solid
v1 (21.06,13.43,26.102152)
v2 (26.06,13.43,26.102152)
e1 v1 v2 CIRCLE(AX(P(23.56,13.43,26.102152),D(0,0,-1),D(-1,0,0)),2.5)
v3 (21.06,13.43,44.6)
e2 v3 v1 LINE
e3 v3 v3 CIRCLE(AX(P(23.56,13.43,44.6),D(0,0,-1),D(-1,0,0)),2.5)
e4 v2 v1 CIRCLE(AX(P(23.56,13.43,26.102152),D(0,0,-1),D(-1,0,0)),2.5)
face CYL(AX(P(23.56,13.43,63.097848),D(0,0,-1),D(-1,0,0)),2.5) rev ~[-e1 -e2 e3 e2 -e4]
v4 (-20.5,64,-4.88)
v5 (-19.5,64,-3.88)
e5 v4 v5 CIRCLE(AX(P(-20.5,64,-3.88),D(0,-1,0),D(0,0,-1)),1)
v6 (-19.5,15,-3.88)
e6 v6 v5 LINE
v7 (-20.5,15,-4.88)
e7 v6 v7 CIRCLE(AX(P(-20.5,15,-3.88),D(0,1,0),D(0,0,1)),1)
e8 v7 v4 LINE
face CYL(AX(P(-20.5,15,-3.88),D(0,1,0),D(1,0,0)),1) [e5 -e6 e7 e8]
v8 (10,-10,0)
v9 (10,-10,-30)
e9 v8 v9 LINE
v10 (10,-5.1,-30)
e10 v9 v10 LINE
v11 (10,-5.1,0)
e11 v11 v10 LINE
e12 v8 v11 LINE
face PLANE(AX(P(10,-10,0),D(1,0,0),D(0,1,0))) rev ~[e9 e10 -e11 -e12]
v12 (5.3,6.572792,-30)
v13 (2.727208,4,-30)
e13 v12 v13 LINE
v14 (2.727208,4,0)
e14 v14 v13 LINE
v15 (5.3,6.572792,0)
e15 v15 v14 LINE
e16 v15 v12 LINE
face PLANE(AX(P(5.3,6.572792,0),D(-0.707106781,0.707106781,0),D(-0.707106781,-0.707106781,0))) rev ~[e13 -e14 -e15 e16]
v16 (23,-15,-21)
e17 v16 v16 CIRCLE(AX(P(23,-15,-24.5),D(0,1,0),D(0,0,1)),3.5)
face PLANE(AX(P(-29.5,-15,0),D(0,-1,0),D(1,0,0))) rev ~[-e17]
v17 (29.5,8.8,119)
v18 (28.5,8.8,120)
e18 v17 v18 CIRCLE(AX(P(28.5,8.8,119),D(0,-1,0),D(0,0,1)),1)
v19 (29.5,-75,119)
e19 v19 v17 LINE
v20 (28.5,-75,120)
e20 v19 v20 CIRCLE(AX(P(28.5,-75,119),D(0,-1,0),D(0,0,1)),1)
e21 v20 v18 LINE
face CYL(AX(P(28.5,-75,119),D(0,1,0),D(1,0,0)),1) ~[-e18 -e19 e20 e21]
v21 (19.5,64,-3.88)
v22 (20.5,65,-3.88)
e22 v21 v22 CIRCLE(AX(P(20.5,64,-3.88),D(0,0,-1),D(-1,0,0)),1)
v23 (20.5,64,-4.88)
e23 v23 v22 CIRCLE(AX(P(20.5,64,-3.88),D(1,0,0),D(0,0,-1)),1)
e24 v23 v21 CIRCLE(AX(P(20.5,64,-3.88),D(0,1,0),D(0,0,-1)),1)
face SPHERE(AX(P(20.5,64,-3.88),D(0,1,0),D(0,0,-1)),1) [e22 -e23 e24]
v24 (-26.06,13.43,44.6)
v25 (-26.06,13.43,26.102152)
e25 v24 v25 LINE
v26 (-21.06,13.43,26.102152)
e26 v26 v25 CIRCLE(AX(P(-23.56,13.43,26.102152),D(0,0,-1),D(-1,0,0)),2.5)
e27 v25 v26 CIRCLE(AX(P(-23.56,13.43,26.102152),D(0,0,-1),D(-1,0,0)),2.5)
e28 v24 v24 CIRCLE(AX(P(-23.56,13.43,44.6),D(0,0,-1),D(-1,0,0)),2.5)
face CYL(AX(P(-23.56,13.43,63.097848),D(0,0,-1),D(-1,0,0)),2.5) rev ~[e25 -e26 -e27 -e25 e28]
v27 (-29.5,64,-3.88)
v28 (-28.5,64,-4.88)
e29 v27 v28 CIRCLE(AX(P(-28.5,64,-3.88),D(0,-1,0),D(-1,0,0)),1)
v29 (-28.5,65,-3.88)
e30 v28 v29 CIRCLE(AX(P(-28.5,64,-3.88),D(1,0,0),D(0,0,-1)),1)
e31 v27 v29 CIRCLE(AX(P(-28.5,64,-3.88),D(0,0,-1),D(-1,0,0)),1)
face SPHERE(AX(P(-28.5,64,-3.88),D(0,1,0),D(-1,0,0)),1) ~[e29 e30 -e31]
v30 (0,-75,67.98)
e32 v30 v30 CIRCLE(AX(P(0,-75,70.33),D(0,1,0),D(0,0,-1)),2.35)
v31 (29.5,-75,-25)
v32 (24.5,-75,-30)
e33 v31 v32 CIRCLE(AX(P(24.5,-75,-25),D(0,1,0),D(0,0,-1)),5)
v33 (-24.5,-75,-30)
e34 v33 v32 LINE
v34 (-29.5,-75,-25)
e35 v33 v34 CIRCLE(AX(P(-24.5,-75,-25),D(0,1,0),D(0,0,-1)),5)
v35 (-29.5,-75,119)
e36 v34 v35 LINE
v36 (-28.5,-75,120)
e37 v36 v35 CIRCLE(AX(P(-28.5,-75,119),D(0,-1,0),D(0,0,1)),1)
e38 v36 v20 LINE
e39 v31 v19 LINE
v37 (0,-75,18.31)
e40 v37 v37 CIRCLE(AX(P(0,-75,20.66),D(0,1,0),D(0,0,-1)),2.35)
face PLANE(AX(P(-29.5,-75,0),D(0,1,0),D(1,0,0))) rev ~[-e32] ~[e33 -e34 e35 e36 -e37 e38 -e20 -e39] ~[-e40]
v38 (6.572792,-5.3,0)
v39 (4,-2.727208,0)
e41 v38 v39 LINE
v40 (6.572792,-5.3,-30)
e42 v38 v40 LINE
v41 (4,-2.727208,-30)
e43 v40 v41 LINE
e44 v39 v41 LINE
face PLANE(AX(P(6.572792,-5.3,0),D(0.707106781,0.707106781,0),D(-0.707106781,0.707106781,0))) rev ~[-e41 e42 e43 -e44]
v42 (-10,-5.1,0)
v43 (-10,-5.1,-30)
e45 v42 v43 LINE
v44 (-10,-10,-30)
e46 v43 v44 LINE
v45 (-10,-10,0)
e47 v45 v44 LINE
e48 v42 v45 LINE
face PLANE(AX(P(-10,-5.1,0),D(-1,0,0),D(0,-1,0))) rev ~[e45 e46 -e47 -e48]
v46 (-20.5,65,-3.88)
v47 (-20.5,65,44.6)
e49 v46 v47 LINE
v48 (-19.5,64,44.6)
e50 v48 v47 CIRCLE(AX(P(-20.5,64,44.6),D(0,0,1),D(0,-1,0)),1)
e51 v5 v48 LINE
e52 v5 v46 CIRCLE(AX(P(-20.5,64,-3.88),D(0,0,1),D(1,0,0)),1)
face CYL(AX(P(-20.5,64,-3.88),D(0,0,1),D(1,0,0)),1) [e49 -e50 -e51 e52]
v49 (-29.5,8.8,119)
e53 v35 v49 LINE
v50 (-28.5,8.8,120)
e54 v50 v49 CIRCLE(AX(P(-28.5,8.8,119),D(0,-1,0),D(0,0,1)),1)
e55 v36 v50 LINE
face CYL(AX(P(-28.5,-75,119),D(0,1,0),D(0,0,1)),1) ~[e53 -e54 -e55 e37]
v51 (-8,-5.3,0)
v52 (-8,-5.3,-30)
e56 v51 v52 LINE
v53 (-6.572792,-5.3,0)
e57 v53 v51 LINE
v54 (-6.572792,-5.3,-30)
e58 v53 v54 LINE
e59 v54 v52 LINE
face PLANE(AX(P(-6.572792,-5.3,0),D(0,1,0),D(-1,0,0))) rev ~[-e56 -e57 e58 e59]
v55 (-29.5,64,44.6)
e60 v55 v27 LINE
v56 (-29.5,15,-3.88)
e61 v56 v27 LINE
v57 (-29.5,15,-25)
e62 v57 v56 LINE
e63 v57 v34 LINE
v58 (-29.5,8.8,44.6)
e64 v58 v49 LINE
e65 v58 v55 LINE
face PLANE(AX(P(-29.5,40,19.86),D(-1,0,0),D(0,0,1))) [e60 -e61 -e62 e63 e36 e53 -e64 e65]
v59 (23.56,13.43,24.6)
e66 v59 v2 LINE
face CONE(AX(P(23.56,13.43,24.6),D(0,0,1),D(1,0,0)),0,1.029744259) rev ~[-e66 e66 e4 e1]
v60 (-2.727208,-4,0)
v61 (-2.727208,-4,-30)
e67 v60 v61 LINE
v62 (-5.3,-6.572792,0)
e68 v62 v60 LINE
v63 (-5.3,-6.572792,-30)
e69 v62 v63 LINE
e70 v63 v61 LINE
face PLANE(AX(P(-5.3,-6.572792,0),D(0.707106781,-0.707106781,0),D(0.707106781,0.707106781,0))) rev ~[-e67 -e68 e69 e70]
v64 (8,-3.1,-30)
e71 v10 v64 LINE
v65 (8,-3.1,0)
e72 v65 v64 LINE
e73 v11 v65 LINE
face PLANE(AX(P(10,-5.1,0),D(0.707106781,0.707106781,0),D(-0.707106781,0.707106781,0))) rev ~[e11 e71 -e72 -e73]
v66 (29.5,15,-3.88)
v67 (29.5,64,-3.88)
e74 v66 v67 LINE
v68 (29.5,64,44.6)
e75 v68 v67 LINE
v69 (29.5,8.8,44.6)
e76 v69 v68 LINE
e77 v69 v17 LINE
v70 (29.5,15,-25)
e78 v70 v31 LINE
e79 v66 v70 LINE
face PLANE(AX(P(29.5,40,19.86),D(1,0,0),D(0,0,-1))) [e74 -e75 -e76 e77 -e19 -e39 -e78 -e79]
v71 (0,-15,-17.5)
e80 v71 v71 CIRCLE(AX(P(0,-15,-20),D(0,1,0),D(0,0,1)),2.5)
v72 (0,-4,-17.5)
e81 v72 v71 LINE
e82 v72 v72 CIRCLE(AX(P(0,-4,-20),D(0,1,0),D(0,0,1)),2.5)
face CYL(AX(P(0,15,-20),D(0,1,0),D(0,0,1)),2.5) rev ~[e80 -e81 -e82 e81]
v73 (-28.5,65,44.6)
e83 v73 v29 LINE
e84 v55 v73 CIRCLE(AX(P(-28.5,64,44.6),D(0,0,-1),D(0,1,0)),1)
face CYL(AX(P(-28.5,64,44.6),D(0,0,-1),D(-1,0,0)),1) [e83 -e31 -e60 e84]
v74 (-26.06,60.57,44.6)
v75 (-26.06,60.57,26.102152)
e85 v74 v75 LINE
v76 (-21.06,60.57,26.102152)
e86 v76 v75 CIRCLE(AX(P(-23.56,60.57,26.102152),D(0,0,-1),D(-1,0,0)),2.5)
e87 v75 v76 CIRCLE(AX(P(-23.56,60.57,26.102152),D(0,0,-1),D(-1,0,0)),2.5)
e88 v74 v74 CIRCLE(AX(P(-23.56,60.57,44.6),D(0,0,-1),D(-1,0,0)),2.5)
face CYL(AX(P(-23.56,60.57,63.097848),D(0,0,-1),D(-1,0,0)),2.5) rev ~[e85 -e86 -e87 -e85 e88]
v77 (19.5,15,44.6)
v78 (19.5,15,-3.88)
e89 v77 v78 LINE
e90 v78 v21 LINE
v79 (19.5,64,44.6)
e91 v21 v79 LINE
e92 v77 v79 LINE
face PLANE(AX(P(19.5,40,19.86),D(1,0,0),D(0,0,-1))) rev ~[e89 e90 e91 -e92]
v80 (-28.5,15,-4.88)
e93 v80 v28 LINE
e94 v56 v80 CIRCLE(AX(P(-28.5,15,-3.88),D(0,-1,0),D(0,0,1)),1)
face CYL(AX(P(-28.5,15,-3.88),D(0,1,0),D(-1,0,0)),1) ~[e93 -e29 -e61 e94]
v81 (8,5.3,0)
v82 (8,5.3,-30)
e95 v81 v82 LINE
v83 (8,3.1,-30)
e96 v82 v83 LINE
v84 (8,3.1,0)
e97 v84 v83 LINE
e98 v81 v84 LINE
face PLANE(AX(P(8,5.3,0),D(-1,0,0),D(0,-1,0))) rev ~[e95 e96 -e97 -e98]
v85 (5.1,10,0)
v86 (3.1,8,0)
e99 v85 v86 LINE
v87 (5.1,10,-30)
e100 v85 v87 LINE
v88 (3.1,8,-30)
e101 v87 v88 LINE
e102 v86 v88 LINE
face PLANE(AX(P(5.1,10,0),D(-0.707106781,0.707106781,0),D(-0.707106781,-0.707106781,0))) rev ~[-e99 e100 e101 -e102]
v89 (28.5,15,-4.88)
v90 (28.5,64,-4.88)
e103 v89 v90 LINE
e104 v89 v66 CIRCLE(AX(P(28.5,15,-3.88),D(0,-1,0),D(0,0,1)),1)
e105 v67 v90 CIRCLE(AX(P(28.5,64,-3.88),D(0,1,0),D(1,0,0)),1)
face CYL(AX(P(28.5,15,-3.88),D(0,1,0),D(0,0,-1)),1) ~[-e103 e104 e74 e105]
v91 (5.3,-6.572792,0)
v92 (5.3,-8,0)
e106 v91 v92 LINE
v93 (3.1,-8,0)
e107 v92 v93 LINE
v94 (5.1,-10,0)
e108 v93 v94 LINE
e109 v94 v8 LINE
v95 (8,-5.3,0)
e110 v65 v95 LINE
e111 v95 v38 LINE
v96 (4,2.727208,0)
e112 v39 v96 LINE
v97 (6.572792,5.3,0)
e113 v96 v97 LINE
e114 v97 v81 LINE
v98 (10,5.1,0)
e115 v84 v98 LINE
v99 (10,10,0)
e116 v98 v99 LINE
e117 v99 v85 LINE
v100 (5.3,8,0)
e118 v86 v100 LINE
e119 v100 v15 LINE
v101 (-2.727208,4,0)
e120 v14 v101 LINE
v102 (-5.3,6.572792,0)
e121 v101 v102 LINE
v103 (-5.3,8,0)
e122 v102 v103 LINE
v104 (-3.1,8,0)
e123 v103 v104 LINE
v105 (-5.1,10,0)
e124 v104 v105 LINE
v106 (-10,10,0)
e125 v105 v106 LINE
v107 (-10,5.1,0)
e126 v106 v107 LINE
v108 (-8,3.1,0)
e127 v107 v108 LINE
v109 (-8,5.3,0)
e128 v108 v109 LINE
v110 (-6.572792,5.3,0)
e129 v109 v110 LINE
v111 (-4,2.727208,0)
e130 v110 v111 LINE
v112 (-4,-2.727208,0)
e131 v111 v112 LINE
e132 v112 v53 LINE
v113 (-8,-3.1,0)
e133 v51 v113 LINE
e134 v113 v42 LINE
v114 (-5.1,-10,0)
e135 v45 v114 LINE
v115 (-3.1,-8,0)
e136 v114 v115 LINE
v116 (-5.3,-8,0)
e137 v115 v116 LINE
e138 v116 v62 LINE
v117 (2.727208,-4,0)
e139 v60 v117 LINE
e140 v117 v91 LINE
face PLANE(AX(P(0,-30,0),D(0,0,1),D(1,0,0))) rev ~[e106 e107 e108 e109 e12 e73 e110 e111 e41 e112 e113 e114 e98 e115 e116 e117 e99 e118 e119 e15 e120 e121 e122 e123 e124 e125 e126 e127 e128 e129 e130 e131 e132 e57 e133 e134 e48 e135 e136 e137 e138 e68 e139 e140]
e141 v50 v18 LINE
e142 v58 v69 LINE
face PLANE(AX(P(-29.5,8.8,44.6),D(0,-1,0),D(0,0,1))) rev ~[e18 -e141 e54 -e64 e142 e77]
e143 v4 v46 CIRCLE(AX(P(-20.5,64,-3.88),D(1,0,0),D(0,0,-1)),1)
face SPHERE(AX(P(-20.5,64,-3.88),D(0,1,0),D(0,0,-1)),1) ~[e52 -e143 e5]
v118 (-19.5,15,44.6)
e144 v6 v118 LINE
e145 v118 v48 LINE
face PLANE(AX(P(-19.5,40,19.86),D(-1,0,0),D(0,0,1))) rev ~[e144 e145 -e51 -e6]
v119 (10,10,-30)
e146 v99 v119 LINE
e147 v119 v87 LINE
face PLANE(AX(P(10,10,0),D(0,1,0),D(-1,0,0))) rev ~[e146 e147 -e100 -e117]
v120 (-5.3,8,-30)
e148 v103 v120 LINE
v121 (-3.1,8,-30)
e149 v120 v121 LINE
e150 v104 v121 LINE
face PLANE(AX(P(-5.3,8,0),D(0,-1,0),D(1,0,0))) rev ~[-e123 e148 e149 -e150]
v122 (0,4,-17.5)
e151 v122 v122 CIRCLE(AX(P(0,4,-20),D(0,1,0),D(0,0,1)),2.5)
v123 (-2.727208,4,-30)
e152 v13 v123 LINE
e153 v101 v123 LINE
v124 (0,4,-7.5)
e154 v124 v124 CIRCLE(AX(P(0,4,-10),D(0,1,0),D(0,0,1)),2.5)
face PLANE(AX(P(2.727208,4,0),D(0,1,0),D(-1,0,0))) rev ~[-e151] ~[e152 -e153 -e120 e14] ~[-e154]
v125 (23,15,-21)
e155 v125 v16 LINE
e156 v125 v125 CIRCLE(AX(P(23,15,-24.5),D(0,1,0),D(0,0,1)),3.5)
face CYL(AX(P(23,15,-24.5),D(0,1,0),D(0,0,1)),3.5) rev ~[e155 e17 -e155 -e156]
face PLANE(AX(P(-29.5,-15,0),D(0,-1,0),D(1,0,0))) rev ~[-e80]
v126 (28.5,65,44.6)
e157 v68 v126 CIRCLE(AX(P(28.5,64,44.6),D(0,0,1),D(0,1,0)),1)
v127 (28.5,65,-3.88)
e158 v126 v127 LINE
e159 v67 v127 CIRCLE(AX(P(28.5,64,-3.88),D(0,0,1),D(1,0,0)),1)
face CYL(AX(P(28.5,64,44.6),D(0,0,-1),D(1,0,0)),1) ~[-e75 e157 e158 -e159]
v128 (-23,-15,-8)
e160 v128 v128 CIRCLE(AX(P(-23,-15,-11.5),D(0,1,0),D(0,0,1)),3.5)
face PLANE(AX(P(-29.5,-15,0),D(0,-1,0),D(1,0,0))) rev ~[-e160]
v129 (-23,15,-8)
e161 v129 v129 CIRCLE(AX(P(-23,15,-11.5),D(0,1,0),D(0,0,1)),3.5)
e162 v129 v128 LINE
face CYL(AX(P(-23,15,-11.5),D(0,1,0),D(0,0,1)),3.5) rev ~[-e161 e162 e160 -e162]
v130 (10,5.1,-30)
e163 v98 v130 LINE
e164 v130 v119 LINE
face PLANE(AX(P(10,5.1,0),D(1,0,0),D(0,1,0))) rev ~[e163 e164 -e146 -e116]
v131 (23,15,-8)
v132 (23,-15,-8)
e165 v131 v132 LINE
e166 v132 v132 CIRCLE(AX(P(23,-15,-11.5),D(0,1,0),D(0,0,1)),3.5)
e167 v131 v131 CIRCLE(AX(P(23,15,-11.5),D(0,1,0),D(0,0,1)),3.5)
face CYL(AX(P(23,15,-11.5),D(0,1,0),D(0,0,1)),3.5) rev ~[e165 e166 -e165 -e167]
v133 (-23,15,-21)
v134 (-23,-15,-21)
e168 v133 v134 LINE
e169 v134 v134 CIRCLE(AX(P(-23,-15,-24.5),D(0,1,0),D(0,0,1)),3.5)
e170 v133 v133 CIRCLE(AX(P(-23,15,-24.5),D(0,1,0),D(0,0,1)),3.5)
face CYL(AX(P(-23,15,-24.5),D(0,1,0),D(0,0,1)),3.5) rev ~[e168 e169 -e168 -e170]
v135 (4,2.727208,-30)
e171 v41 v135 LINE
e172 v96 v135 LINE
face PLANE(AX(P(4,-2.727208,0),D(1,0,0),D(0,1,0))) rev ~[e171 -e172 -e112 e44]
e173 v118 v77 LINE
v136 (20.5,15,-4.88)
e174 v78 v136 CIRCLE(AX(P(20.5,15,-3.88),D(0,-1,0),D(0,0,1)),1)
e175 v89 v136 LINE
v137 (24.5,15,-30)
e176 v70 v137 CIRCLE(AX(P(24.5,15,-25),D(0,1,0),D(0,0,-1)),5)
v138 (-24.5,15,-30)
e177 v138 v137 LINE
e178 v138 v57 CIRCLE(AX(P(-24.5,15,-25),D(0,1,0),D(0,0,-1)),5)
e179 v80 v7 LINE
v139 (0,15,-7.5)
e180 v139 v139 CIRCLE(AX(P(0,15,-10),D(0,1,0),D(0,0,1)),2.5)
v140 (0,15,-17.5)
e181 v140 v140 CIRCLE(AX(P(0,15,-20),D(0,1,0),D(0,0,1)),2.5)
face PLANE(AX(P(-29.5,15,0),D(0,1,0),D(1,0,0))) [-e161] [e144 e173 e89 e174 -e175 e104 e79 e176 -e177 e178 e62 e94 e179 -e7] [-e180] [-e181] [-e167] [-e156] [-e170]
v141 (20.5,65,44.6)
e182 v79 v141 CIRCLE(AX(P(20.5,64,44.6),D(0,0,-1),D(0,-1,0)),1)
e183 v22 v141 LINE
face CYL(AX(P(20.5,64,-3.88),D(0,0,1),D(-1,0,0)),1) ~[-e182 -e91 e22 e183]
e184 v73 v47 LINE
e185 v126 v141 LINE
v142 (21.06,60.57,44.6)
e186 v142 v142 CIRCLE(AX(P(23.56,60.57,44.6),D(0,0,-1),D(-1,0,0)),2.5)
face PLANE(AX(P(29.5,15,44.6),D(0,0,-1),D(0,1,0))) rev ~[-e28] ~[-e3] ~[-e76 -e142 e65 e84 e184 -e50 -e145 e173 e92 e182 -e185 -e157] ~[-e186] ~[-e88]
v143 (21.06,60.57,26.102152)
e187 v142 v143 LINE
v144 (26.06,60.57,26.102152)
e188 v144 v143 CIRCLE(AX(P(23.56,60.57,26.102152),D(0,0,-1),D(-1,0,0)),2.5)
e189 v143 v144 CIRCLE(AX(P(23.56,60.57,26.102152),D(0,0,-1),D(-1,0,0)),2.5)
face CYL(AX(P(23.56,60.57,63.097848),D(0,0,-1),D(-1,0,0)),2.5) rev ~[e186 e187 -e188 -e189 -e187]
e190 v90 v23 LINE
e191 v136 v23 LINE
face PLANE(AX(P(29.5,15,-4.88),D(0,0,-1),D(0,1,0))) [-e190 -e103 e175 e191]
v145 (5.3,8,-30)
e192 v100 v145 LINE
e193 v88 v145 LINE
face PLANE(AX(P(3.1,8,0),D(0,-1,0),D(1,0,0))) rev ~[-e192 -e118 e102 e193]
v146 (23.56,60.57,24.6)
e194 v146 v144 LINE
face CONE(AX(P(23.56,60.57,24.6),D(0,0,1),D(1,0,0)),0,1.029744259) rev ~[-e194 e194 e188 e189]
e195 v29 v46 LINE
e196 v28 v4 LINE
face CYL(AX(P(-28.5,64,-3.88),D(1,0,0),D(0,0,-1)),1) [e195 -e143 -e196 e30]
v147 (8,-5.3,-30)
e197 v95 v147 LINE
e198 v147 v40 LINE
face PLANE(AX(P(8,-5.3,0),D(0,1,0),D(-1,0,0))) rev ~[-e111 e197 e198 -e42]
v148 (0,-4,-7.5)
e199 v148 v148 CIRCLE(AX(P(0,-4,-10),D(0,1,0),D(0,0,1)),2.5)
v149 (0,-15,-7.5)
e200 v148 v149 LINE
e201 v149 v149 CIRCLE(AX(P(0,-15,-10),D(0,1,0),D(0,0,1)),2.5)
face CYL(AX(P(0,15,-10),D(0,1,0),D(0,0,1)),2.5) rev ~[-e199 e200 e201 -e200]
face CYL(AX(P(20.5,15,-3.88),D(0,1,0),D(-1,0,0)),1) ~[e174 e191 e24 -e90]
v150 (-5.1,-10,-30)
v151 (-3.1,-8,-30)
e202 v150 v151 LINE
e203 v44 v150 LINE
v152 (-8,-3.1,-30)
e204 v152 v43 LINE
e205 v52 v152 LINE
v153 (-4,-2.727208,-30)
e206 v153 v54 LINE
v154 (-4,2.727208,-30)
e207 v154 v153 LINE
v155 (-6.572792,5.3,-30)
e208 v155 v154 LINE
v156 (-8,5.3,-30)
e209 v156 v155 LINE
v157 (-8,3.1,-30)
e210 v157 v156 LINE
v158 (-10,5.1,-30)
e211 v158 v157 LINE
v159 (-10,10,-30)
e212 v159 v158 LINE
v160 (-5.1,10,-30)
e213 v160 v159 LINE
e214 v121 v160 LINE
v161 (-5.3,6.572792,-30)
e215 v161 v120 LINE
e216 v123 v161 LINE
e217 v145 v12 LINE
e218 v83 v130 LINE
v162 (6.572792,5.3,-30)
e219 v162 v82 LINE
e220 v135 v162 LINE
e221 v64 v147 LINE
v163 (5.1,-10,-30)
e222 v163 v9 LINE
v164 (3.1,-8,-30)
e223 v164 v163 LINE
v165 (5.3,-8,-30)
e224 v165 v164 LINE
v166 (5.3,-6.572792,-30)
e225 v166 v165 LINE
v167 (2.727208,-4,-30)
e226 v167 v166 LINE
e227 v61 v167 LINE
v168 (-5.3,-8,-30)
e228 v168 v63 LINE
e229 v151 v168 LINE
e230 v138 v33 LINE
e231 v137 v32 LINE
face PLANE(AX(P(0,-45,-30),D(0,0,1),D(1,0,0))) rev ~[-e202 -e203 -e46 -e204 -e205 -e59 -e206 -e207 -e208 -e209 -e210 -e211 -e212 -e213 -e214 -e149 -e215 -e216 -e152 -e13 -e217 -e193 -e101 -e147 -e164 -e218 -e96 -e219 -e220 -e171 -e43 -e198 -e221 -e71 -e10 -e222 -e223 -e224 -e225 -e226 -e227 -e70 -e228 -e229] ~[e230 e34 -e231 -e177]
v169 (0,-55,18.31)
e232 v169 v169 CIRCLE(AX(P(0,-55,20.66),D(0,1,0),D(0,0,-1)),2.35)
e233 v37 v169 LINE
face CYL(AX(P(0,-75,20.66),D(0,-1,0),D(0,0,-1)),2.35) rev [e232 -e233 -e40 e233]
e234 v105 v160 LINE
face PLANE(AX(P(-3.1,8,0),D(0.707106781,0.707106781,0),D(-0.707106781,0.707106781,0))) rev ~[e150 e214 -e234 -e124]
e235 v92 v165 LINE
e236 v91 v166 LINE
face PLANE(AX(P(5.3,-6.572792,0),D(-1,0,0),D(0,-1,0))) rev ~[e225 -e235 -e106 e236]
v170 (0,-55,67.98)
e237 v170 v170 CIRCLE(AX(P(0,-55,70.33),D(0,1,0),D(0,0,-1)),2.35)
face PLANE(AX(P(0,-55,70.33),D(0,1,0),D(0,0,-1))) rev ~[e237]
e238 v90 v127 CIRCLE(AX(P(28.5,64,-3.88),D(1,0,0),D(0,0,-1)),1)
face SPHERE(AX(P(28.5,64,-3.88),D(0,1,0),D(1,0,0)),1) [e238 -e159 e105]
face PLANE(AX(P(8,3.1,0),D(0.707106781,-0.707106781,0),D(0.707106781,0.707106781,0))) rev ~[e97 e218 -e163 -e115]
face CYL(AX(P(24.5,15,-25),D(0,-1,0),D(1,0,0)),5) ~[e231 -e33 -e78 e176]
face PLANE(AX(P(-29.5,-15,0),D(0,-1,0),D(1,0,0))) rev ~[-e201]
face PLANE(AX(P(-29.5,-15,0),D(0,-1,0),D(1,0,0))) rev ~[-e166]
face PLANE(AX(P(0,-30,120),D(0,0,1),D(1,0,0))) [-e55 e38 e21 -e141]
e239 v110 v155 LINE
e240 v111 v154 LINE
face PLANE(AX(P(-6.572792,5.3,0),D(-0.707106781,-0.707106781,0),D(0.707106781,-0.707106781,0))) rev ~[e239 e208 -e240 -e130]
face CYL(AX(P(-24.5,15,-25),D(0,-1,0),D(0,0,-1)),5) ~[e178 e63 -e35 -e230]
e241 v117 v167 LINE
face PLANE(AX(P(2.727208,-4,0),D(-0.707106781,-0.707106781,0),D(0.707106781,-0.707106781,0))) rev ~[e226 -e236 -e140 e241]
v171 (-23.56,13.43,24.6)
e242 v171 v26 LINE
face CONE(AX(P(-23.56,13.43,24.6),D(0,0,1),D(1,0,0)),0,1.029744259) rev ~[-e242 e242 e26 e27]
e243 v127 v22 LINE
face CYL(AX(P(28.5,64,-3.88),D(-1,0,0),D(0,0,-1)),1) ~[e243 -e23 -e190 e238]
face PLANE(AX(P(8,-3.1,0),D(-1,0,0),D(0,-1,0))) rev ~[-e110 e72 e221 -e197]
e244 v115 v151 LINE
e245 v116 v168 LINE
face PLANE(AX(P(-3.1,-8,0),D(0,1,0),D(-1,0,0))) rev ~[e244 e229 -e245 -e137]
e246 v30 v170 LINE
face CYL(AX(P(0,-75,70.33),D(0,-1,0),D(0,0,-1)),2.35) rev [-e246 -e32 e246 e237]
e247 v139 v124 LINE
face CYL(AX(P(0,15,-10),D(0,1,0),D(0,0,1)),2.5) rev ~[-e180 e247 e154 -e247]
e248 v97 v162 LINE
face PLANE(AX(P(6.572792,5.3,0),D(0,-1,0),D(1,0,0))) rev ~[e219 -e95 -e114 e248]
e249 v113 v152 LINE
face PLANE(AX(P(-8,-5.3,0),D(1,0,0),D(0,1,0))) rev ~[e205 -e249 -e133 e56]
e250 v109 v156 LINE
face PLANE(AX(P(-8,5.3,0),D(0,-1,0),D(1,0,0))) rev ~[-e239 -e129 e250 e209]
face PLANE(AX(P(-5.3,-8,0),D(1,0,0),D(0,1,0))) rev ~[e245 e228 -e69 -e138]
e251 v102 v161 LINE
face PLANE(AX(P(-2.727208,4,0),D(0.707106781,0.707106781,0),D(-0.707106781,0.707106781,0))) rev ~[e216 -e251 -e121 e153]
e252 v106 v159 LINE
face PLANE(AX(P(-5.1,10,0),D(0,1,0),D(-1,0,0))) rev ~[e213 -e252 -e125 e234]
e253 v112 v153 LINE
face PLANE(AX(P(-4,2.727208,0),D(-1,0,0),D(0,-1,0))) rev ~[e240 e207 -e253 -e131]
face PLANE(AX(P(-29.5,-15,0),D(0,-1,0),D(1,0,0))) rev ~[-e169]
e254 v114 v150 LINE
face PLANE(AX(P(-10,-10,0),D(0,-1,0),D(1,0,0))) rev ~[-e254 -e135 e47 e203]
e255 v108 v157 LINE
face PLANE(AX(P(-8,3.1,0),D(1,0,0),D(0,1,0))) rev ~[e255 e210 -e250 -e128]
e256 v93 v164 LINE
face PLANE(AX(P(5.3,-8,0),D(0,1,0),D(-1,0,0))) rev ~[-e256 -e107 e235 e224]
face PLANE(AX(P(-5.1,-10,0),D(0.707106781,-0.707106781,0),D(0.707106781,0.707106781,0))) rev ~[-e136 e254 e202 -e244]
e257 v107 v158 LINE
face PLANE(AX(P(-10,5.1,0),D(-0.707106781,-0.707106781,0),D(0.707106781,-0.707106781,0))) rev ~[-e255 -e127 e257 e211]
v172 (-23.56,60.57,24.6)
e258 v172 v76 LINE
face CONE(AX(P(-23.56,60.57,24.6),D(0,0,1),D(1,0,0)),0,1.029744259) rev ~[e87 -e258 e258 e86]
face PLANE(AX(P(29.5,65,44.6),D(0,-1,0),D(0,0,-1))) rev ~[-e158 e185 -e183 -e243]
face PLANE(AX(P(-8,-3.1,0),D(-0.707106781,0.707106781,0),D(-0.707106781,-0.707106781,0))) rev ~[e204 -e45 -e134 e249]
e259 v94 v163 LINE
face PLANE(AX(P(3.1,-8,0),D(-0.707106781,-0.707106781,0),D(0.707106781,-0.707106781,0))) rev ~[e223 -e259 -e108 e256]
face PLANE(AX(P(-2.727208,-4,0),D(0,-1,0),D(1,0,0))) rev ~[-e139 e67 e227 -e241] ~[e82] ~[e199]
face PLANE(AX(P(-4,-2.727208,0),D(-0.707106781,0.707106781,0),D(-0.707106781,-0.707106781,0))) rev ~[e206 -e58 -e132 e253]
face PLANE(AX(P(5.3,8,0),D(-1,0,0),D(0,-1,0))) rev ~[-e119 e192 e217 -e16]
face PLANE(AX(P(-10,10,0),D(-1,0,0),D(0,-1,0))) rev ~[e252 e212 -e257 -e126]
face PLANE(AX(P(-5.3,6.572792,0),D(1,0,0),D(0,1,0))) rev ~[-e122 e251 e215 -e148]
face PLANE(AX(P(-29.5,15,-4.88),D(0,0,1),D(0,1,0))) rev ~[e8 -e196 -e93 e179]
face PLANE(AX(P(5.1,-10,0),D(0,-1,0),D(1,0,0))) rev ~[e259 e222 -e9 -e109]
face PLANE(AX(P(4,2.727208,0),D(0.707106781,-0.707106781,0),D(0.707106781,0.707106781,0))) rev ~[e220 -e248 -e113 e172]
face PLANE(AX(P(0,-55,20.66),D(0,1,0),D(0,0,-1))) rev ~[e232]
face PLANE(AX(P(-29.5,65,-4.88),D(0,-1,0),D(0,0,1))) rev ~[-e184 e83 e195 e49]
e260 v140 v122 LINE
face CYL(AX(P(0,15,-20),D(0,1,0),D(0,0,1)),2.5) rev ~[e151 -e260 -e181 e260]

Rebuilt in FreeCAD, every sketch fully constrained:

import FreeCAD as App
import Part
import Sketcher
Q = App.Units.Quantity


def edges_at(feature, points):
    """Names of the edges that pass closest to the given points."""
    edges = feature.Shape.Edges
    near = lambda p: min(range(len(edges)), key=lambda i: edges[i].distToShape(Part.Vertex(*p))[0])
    return sorted({f"Edge{near(p) + 1}" for p in points})

doc = App.newDocument("Part")
body = doc.addObject("PartDesign::Body", "Body")

# Sketch on XY plane
sketch1 = body.newObject("Sketcher::SketchObject", "Sketch")
sketch1.AttachmentSupport = (doc.getObject("XY_Plane"), [""])
sketch1.MapMode = "FlatFace"
sketch1.addGeometry([
    Part.LineSegment(App.Vector(-29.5, 15, 0), App.Vector(-29.5, -15, 0)),  # 0
    Part.LineSegment(App.Vector(-29.5, -15, 0), App.Vector(29.5, -15, 0)),  # 1
    Part.LineSegment(App.Vector(29.5, -15, 0), App.Vector(29.5, 15, 0)),  # 2
    Part.LineSegment(App.Vector(29.5, 15, 0), App.Vector(-29.5, 15, 0)),  # 3
    Part.LineSegment(App.Vector(6.6, 5.3, 0), App.Vector(4, 2.7, 0)),  # 4
    Part.LineSegment(App.Vector(4, 2.7, 0), App.Vector(4, -2.7, 0)),  # 5
    Part.LineSegment(App.Vector(4, -2.7, 0), App.Vector(6.6, -5.3, 0)),  # 6
    Part.LineSegment(App.Vector(6.6, -5.3, 0), App.Vector(8, -5.3, 0)),  # 7
    Part.LineSegment(App.Vector(8, -5.3, 0), App.Vector(8, -3.1, 0)),  # 8
    Part.LineSegment(App.Vector(8, -3.1, 0), App.Vector(10, -5.1, 0)),  # 9
    Part.LineSegment(App.Vector(10, -5.1, 0), App.Vector(10, -10, 0)),  # 10
    Part.LineSegment(App.Vector(10, -10, 0), App.Vector(5.1, -10, 0)),  # 11
    Part.LineSegment(App.Vector(5.1, -10, 0), App.Vector(3.1, -8, 0)),  # 12
    Part.LineSegment(App.Vector(3.1, -8, 0), App.Vector(5.3, -8, 0)),  # 13
    Part.LineSegment(App.Vector(5.3, -8, 0), App.Vector(5.3, -6.6, 0)),  # 14
    Part.LineSegment(App.Vector(5.3, -6.6, 0), App.Vector(2.7, -4, 0)),  # 15
    Part.LineSegment(App.Vector(2.7, -4, 0), App.Vector(-2.7, -4, 0)),  # 16
    Part.LineSegment(App.Vector(-2.7, -4, 0), App.Vector(-5.3, -6.6, 0)),  # 17
    Part.LineSegment(App.Vector(-5.3, -6.6, 0), App.Vector(-5.3, -8, 0)),  # 18
    Part.LineSegment(App.Vector(-5.3, -8, 0), App.Vector(-3.1, -8, 0)),  # 19
    Part.LineSegment(App.Vector(-3.1, -8, 0), App.Vector(-5.1, -10, 0)),  # 20
    Part.LineSegment(App.Vector(-5.1, -10, 0), App.Vector(-10, -10, 0)),  # 21
    Part.LineSegment(App.Vector(-10, -10, 0), App.Vector(-10, -5.1, 0)),  # 22
    Part.LineSegment(App.Vector(-10, -5.1, 0), App.Vector(-8, -3.1, 0)),  # 23
    Part.LineSegment(App.Vector(-8, -3.1, 0), App.Vector(-8, -5.3, 0)),  # 24
    Part.LineSegment(App.Vector(-8, -5.3, 0), App.Vector(-6.6, -5.3, 0)),  # 25
    Part.LineSegment(App.Vector(-6.6, -5.3, 0), App.Vector(-4, -2.7, 0)),  # 26
    Part.LineSegment(App.Vector(-4, -2.7, 0), App.Vector(-4, 2.7, 0)),  # 27
    Part.LineSegment(App.Vector(-4, 2.7, 0), App.Vector(-6.6, 5.3, 0)),  # 28
    Part.LineSegment(App.Vector(-6.6, 5.3, 0), App.Vector(-8, 5.3, 0)),  # 29
    Part.LineSegment(App.Vector(-8, 5.3, 0), App.Vector(-8, 3.1, 0)),  # 30
    Part.LineSegment(App.Vector(-8, 3.1, 0), App.Vector(-10, 5.1, 0)),  # 31
    Part.LineSegment(App.Vector(-10, 5.1, 0), App.Vector(-10, 10, 0)),  # 32
    Part.LineSegment(App.Vector(-10, 10, 0), App.Vector(-5.1, 10, 0)),  # 33
    Part.LineSegment(App.Vector(-5.1, 10, 0), App.Vector(-3.1, 8, 0)),  # 34
    Part.LineSegment(App.Vector(-3.1, 8, 0), App.Vector(-5.3, 8, 0)),  # 35
    Part.LineSegment(App.Vector(-5.3, 8, 0), App.Vector(-5.3, 6.6, 0)),  # 36
    Part.LineSegment(App.Vector(-5.3, 6.6, 0), App.Vector(-2.7, 4, 0)),  # 37
    Part.LineSegment(App.Vector(-2.7, 4, 0), App.Vector(2.7, 4, 0)),  # 38
    Part.LineSegment(App.Vector(2.7, 4, 0), App.Vector(5.3, 6.6, 0)),  # 39
    Part.LineSegment(App.Vector(5.3, 6.6, 0), App.Vector(5.3, 8, 0)),  # 40
    Part.LineSegment(App.Vector(5.3, 8, 0), App.Vector(3.1, 8, 0)),  # 41
    Part.LineSegment(App.Vector(3.1, 8, 0), App.Vector(5.1, 10, 0)),  # 42
    Part.LineSegment(App.Vector(5.1, 10, 0), App.Vector(10, 10, 0)),  # 43
    Part.LineSegment(App.Vector(10, 10, 0), App.Vector(10, 5.1, 0)),  # 44
    Part.LineSegment(App.Vector(10, 5.1, 0), App.Vector(8, 3.1, 0)),  # 45
    Part.LineSegment(App.Vector(8, 3.1, 0), App.Vector(8, 5.3, 0)),  # 46
    Part.LineSegment(App.Vector(8, 5.3, 0), App.Vector(6.6, 5.3, 0)),  # 47
], False)
sketch1.addConstraint([
    Sketcher.Constraint("Coincident", 0, 2, 1, 1),
    Sketcher.Constraint("Coincident", 1, 2, 2, 1),
    Sketcher.Constraint("Coincident", 2, 2, 3, 1),
    Sketcher.Constraint("Coincident", 3, 2, 0, 1),
    Sketcher.Constraint("Coincident", 4, 2, 5, 1),
    Sketcher.Constraint("Coincident", 5, 2, 6, 1),
    Sketcher.Constraint("Coincident", 6, 2, 7, 1),
    Sketcher.Constraint("Coincident", 7, 2, 8, 1),
    Sketcher.Constraint("Coincident", 8, 2, 9, 1),
    Sketcher.Constraint("Coincident", 9, 2, 10, 1),
    Sketcher.Constraint("Coincident", 10, 2, 11, 1),
    Sketcher.Constraint("Coincident", 11, 2, 12, 1),
    Sketcher.Constraint("Coincident", 12, 2, 13, 1),
    Sketcher.Constraint("Coincident", 13, 2, 14, 1),
    Sketcher.Constraint("Coincident", 14, 2, 15, 1),
    Sketcher.Constraint("Coincident", 15, 2, 16, 1),
    Sketcher.Constraint("Coincident", 16, 2, 17, 1),
    Sketcher.Constraint("Coincident", 17, 2, 18, 1),
    Sketcher.Constraint("Coincident", 18, 2, 19, 1),
    Sketcher.Constraint("Coincident", 19, 2, 20, 1),
    Sketcher.Constraint("Coincident", 20, 2, 21, 1),
    Sketcher.Constraint("Coincident", 21, 2, 22, 1),
    Sketcher.Constraint("Coincident", 22, 2, 23, 1),
    Sketcher.Constraint("Coincident", 23, 2, 24, 1),
    Sketcher.Constraint("Coincident", 24, 2, 25, 1),
    Sketcher.Constraint("Coincident", 25, 2, 26, 1),
    Sketcher.Constraint("Coincident", 26, 2, 27, 1),
    Sketcher.Constraint("Coincident", 27, 2, 28, 1),
    Sketcher.Constraint("Coincident", 28, 2, 29, 1),
    Sketcher.Constraint("Coincident", 29, 2, 30, 1),
    Sketcher.Constraint("Coincident", 30, 2, 31, 1),
    Sketcher.Constraint("Coincident", 31, 2, 32, 1),
    Sketcher.Constraint("Coincident", 32, 2, 33, 1),
    Sketcher.Constraint("Coincident", 33, 2, 34, 1),
    Sketcher.Constraint("Coincident", 34, 2, 35, 1),
    Sketcher.Constraint("Coincident", 35, 2, 36, 1),
    Sketcher.Constraint("Coincident", 36, 2, 37, 1),
    Sketcher.Constraint("Coincident", 37, 2, 38, 1),
    Sketcher.Constraint("Coincident", 38, 2, 39, 1),
    Sketcher.Constraint("Coincident", 39, 2, 40, 1),
    Sketcher.Constraint("Coincident", 40, 2, 41, 1),
    Sketcher.Constraint("Coincident", 41, 2, 42, 1),
    Sketcher.Constraint("Coincident", 42, 2, 43, 1),
    Sketcher.Constraint("Coincident", 43, 2, 44, 1),
    Sketcher.Constraint("Coincident", 44, 2, 45, 1),
    Sketcher.Constraint("Coincident", 45, 2, 46, 1),
    Sketcher.Constraint("Coincident", 46, 2, 47, 1),
    Sketcher.Constraint("Coincident", 47, 2, 4, 1),
    Sketcher.Constraint("Vertical", 0),
    Sketcher.Constraint("Horizontal", 1),
    Sketcher.Constraint("Vertical", 2),
    Sketcher.Constraint("Horizontal", 3),
    Sketcher.Constraint("Vertical", 5),
    Sketcher.Constraint("Horizontal", 7),
    Sketcher.Constraint("Vertical", 8),
    Sketcher.Constraint("Vertical", 10),
    Sketcher.Constraint("Horizontal", 11),
    Sketcher.Constraint("Horizontal", 13),
    Sketcher.Constraint("Vertical", 14),
    Sketcher.Constraint("Horizontal", 16),
    Sketcher.Constraint("Vertical", 18),
    Sketcher.Constraint("Horizontal", 19),
    Sketcher.Constraint("Horizontal", 21),
    Sketcher.Constraint("Vertical", 22),
    Sketcher.Constraint("Vertical", 24),
    Sketcher.Constraint("Horizontal", 25),
    Sketcher.Constraint("Vertical", 27),
    Sketcher.Constraint("Horizontal", 29),
    Sketcher.Constraint("Vertical", 30),
    Sketcher.Constraint("Vertical", 32),
    Sketcher.Constraint("Horizontal", 33),
    Sketcher.Constraint("Horizontal", 35),
    Sketcher.Constraint("Vertical", 36),
    Sketcher.Constraint("Horizontal", 38),
    Sketcher.Constraint("Vertical", 40),
    Sketcher.Constraint("Horizontal", 41),
    Sketcher.Constraint("Horizontal", 43),
    Sketcher.Constraint("Vertical", 44),
    Sketcher.Constraint("Vertical", 46),
    Sketcher.Constraint("Horizontal", 47),
    Sketcher.Constraint("Symmetric", 0, 2, 2, 2, -1, 1),
    Sketcher.Constraint("Symmetric", 4, 2, 26, 2, -1, 1),
    Sketcher.Constraint("Symmetric", 6, 2, 28, 2, -1, 1),
    Sketcher.Constraint("Symmetric", 8, 2, 30, 2, -1, 1),
    Sketcher.Constraint("Symmetric", 9, 2, 31, 2, -1, 1),
    Sketcher.Constraint("Symmetric", 11, 2, 33, 2, -1, 1),
    Sketcher.Constraint("Symmetric", 12, 2, 34, 2, -1, 1),
    Sketcher.Constraint("Symmetric", 14, 2, 36, 2, -1, 1),
    Sketcher.Constraint("Symmetric", 15, 2, 37, 2, -1, 1),
    Sketcher.Constraint("Symmetric", 17, 2, 39, 2, -1, 1),
    Sketcher.Constraint("Symmetric", 19, 2, 41, 2, -1, 1),
    Sketcher.Constraint("Symmetric", 20, 2, 42, 2, -1, 1),
    Sketcher.Constraint("Symmetric", 22, 2, 44, 2, -1, 1),
    Sketcher.Constraint("Symmetric", 23, 2, 45, 2, -1, 1),
    Sketcher.Constraint("Symmetric", 25, 2, 47, 2, -1, 1),
    Sketcher.Constraint("Symmetric", 14, 2, 17, 2, -2),
    Sketcher.Constraint("Symmetric", 12, 2, 19, 2, -2),
    Sketcher.Constraint("Symmetric", 11, 2, 20, 2, -2),
    Sketcher.Constraint("Symmetric", 9, 2, 22, 2, -2),
    Sketcher.Constraint("Symmetric", 8, 2, 23, 2, -2),
    Sketcher.Constraint("Symmetric", 6, 2, 25, 2, -2),
    Sketcher.Constraint("Perpendicular", 4, 6),
    Sketcher.Constraint("Parallel", 6, 9),
    Sketcher.Constraint("Parallel", 9, 12),
    Sketcher.Constraint("Parallel", 12, 15),
    Sketcher.Constraint("Perpendicular", 15, 17),
    Sketcher.Constraint("Parallel", 17, 20),
    Sketcher.Constraint("Perpendicular", 26, 28),
    Sketcher.Constraint("Perpendicular", 37, 39),
    Sketcher.Constraint("Equal", 38, 5),
    Sketcher.Constraint("Equal", 41, 8),
    Sketcher.Constraint("Equal", 43, 10),
    Sketcher.Constraint("Equal", 47, 14),
    Sketcher.Constraint("Equal", 9, 12),
    Sketcher.Constraint("Equal", 6, 15),
    Sketcher.Constraint("DistanceX", 1, 1, 1, 2, Q("59 mm")),
    Sketcher.Constraint("DistanceY", 0, 2, 0, 1, Q("30 mm")),
    Sketcher.Constraint("DistanceX", 11, 2, 11, 1, Q("4.9 mm")),
    Sketcher.Constraint("DistanceX", 13, 1, 13, 2, Q("2.2 mm")),
    Sketcher.Constraint("DistanceX", -1, 1, 4, 2, Q("4 mm")),
    Sketcher.Constraint("DistanceX", -1, 1, 7, 2, Q("8 mm")),
    Sketcher.Constraint("DistanceX", -1, 1, 9, 2, Q("10 mm")),
    Sketcher.Constraint("DistanceX", 7, 1, 7, 2, Q("1.427208 mm")),
])
pad1 = body.newObject("PartDesign::Pad", "Pad")
pad1.Profile = sketch1
pad1.Length = 30
pad1.Reversed = True

# Sketch on XZ plane
sketch2 = body.newObject("Sketcher::SketchObject", "Sketch001")
sketch2.AttachmentSupport = (doc.getObject("XZ_Plane"), [""])
sketch2.MapMode = "FlatFace"
sketch2.AttachmentOffset = App.Placement(App.Vector(0, 0, -15), App.Rotation())
sketch2.addGeometry([
    Part.Circle(App.Vector(0, -10, 0), App.Vector(0, 0, 1), 2.5),  # 0
    Part.Circle(App.Vector(0, -20, 0), App.Vector(0, 0, 1), 2.5),  # 1
    Part.Circle(App.Vector(-23, -24.5, 0), App.Vector(0, 0, 1), 3.5),  # 2
    Part.Circle(App.Vector(23, -24.5, 0), App.Vector(0, 0, 1), 3.5),  # 3
    Part.Circle(App.Vector(23, -11.5, 0), App.Vector(0, 0, 1), 3.5),  # 4
    Part.Circle(App.Vector(-23, -11.5, 0), App.Vector(0, 0, 1), 3.5),  # 5
], False)
sketch2.addConstraint([
    Sketcher.Constraint("Equal", 0, 1),
    Sketcher.Constraint("Equal", 2, 3),
    Sketcher.Constraint("Equal", 3, 4),
    Sketcher.Constraint("Equal", 4, 5),
    Sketcher.Constraint("Symmetric", 2, 3, 3, 3, -2),
    Sketcher.Constraint("Symmetric", 4, 3, 5, 3, -2),
    Sketcher.Constraint("PointOnObject", 0, 3, -2),
    Sketcher.Constraint("PointOnObject", 1, 3, -2),
    Sketcher.Constraint("Vertical", 3, 3, 4, 3),
    Sketcher.Constraint("Diameter", 0, Q("5 mm")),
    Sketcher.Constraint("Diameter", 2, Q("7 mm")),
    Sketcher.Constraint("DistanceY", 0, 3, -1, 1, Q("10 mm")),
    Sketcher.Constraint("DistanceY", 1, 3, -1, 1, Q("20 mm")),
    Sketcher.Constraint("DistanceX", 2, 3, -1, 1, Q("23 mm")),
    Sketcher.Constraint("DistanceY", 3, 3, 4, 3, Q("13 mm")),
    Sketcher.Constraint("DistanceY", 2, 3, -1, 1, Q("24.5 mm")),
])
pocket1 = body.newObject("PartDesign::Pocket", "Pocket")
pocket1.Profile = sketch2
pocket1.Type = "ThroughAll"
pocket1.Reversed = True

# Sketch on XY plane
sketch3 = body.newObject("Sketcher::SketchObject", "Sketch002")
sketch3.AttachmentSupport = (doc.getObject("XY_Plane"), [""])
sketch3.MapMode = "FlatFace"
sketch3.addGeometry([
    Part.LineSegment(App.Vector(-30, -15, 0), App.Vector(-30, -75, 0)),
    Part.LineSegment(App.Vector(-30, -75, 0), App.Vector(30, -75, 0)),
    Part.LineSegment(App.Vector(30, -75, 0), App.Vector(30, -15, 0)),
    Part.LineSegment(App.Vector(30, -15, 0), App.Vector(-30, -15, 0)),
], False)
sketch3.addConstraint([
    Sketcher.Constraint("Coincident", 0, 2, 1, 1),
    Sketcher.Constraint("Coincident", 1, 2, 2, 1),
    Sketcher.Constraint("Coincident", 2, 2, 3, 1),
    Sketcher.Constraint("Coincident", 3, 2, 0, 1),
    Sketcher.Constraint("Vertical", 0),
    Sketcher.Constraint("Horizontal", 1),
    Sketcher.Constraint("Vertical", 2),
    Sketcher.Constraint("Horizontal", 3),
    Sketcher.Constraint("DistanceX", 1, 1, 1, 2, Q("59 mm")),
    Sketcher.Constraint("DistanceY", 0, 2, 0, 1, Q("60 mm")),
    Sketcher.Constraint("DistanceY", 0, 2, -1, 1, Q("75 mm")),
    Sketcher.Constraint("DistanceX", 0, 2, -1, 1, Q("29.5 mm")),
])
pad2 = body.newObject("PartDesign::Pad", "Pad001")
pad2.Profile = sketch3
pad2.Length = 30
pad2.Reversed = True
doc.recompute()

fillet = body.newObject("PartDesign::Fillet", "Fillet")
fillet.Base = (pad2, edges_at(pad2, [(29.5, -30, -30)]))
fillet.Radius = 5
doc.recompute()

fillet2 = body.newObject("PartDesign::Fillet", "Fillet001")
fillet2.Base = (fillet, edges_at(fillet, [(-29.5, -30, -30)]))
fillet2.Radius = 5

# Sketch on XY plane
sketch4 = body.newObject("Sketcher::SketchObject", "Sketch003")
sketch4.AttachmentSupport = (doc.getObject("XY_Plane"), [""])
sketch4.MapMode = "FlatFace"
sketch4.addGeometry([
    Part.LineSegment(App.Vector(-30, 15, 0), App.Vector(-30, -75, 0)),
    Part.LineSegment(App.Vector(-30, -75, 0), App.Vector(30, -75, 0)),
    Part.LineSegment(App.Vector(30, -75, 0), App.Vector(30, 15, 0)),
    Part.LineSegment(App.Vector(30, 15, 0), App.Vector(-30, 15, 0)),
], False)
sketch4.addConstraint([
    Sketcher.Constraint("Coincident", 0, 2, 1, 1),
    Sketcher.Constraint("Coincident", 1, 2, 2, 1),
    Sketcher.Constraint("Coincident", 2, 2, 3, 1),
    Sketcher.Constraint("Coincident", 3, 2, 0, 1),
    Sketcher.Constraint("Vertical", 0),
    Sketcher.Constraint("Horizontal", 1),
    Sketcher.Constraint("Vertical", 2),
    Sketcher.Constraint("Horizontal", 3),
    Sketcher.Constraint("DistanceX", 1, 1, 1, 2, Q("59 mm")),
    Sketcher.Constraint("DistanceY", 0, 2, 0, 1, Q("90 mm")),
    Sketcher.Constraint("DistanceY", 0, 2, -1, 1, Q("75 mm")),
    Sketcher.Constraint("DistanceX", 0, 2, -1, 1, Q("29.5 mm")),
])
pad3 = body.newObject("PartDesign::Pad", "Pad002")
pad3.Profile = sketch4
pad3.Length = 120

# Sketch on YZ plane
sketch5 = body.newObject("Sketcher::SketchObject", "Sketch004")
sketch5.AttachmentSupport = (doc.getObject("YZ_Plane"), [""])
sketch5.MapMode = "FlatFace"
sketch5.AttachmentOffset = App.Placement(App.Vector(0, 0, -29.5), App.Rotation())
sketch5.addGeometry([
    Part.LineSegment(App.Vector(15, 45, 0), App.Vector(9, 45, 0)),
    Part.LineSegment(App.Vector(9, 45, 0), App.Vector(9, 120, 0)),
    Part.LineSegment(App.Vector(9, 120, 0), App.Vector(15, 120, 0)),
    Part.LineSegment(App.Vector(15, 120, 0), App.Vector(15, 45, 0)),
], False)
sketch5.addConstraint([
    Sketcher.Constraint("Coincident", 0, 2, 1, 1),
    Sketcher.Constraint("Coincident", 1, 2, 2, 1),
    Sketcher.Constraint("Coincident", 2, 2, 3, 1),
    Sketcher.Constraint("Coincident", 3, 2, 0, 1),
    Sketcher.Constraint("Horizontal", 0),
    Sketcher.Constraint("Vertical", 1),
    Sketcher.Constraint("Horizontal", 2),
    Sketcher.Constraint("Vertical", 3),
    Sketcher.Constraint("DistanceX", 0, 2, 0, 1, Q("6.2 mm")),
    Sketcher.Constraint("DistanceY", 1, 1, 1, 2, Q("75.4 mm")),
    Sketcher.Constraint("DistanceY", -1, 1, 1, 2, Q("120 mm")),
    Sketcher.Constraint("DistanceX", -1, 1, 2, 2, Q("15 mm")),
])
pocket2 = body.newObject("PartDesign::Pocket", "Pocket001")
pocket2.Profile = sketch5
pocket2.Length = 120
pocket2.Reversed = True

# Sketch on YZ plane
sketch6 = body.newObject("Sketcher::SketchObject", "Sketch005")
sketch6.AttachmentSupport = (doc.getObject("YZ_Plane"), [""])
sketch6.MapMode = "FlatFace"
sketch6.AttachmentOffset = App.Placement(App.Vector(0, 0, -29.5), App.Rotation())
sketch6.addGeometry([
    Part.LineSegment(App.Vector(65, -5, 0), App.Vector(15, -5, 0)),
    Part.LineSegment(App.Vector(15, -5, 0), App.Vector(15, 45, 0)),
    Part.LineSegment(App.Vector(15, 45, 0), App.Vector(65, 45, 0)),
    Part.LineSegment(App.Vector(65, 45, 0), App.Vector(65, -5, 0)),
], False)
sketch6.addConstraint([
    Sketcher.Constraint("Coincident", 0, 2, 1, 1),
    Sketcher.Constraint("Coincident", 1, 2, 2, 1),
    Sketcher.Constraint("Coincident", 2, 2, 3, 1),
    Sketcher.Constraint("Coincident", 3, 2, 0, 1),
    Sketcher.Constraint("Horizontal", 0),
    Sketcher.Constraint("Vertical", 1),
    Sketcher.Constraint("Horizontal", 2),
    Sketcher.Constraint("Vertical", 3),
    Sketcher.Constraint("DistanceX", 0, 2, 0, 1, Q("50 mm")),
    Sketcher.Constraint("DistanceX", -1, 1, 0, 2, Q("15 mm")),
    Sketcher.Constraint("DistanceY", 1, 1, 1, 2, Q("49.48 mm")),
    Sketcher.Constraint("DistanceY", -1, 1, 1, 2, Q("44.6 mm")),
])
pad4 = body.newObject("PartDesign::Pad", "Pad003")
pad4.Profile = sketch6
pad4.Length = 10

# Sketch on XY plane
sketch7 = body.newObject("Sketcher::SketchObject", "Sketch006")
sketch7.AttachmentSupport = (doc.getObject("XY_Plane"), [""])
sketch7.MapMode = "FlatFace"
sketch7.AttachmentOffset = App.Placement(App.Vector(0, 0, 44.6), App.Rotation())
sketch7.addGeometry(Part.Circle(App.Vector(-23.6, 60.6, 0), App.Vector(0, 0, 1), 2.5), False)
sketch7.addConstraint([
    Sketcher.Constraint("Diameter", 0, Q("5 mm")),
    Sketcher.Constraint("DistanceX", 0, 3, -1, 1, Q("23.56 mm")),
    Sketcher.Constraint("DistanceY", -1, 1, 0, 3, Q("60.57 mm")),
])
doc.recompute()
hole = body.newObject("PartDesign::Hole", "Hole")
hole.Profile = sketch7
hole.ThreadType = "None"
hole.Diameter = 5
hole.DepthType = "Dimension"
hole.Depth = 18.497848
hole.DrillPoint = "Angled"
hole.DrillPointAngle = 118

# Sketch on YZ plane
sketch8 = body.newObject("Sketcher::SketchObject", "Sketch007")
sketch8.AttachmentSupport = (doc.getObject("YZ_Plane"), [""])
sketch8.MapMode = "FlatFace"
sketch8.AttachmentOffset = App.Placement(App.Vector(0, 0, 29.5), App.Rotation())
sketch8.addGeometry([
    Part.LineSegment(App.Vector(65, 45, 0), App.Vector(15, 45, 0)),
    Part.LineSegment(App.Vector(15, 45, 0), App.Vector(15, -5, 0)),
    Part.LineSegment(App.Vector(15, -5, 0), App.Vector(65, -5, 0)),
    Part.LineSegment(App.Vector(65, -5, 0), App.Vector(65, 45, 0)),
], False)
sketch8.addConstraint([
    Sketcher.Constraint("Coincident", 0, 2, 1, 1),
    Sketcher.Constraint("Coincident", 1, 2, 2, 1),
    Sketcher.Constraint("Coincident", 2, 2, 3, 1),
    Sketcher.Constraint("Coincident", 3, 2, 0, 1),
    Sketcher.Constraint("Horizontal", 0),
    Sketcher.Constraint("Vertical", 1),
    Sketcher.Constraint("Horizontal", 2),
    Sketcher.Constraint("Vertical", 3),
    Sketcher.Constraint("DistanceX", 0, 2, 0, 1, Q("50 mm")),
    Sketcher.Constraint("DistanceX", -1, 1, 0, 2, Q("15 mm")),
    Sketcher.Constraint("DistanceY", 1, 2, 1, 1, Q("49.48 mm")),
    Sketcher.Constraint("DistanceY", -1, 1, 0, 2, Q("44.6 mm")),
])
pad5 = body.newObject("PartDesign::Pad", "Pad004")
pad5.Profile = sketch8
pad5.Length = 10
pad5.Reversed = True

# Sketch on XY plane
sketch9 = body.newObject("Sketcher::SketchObject", "Sketch008")
sketch9.AttachmentSupport = (doc.getObject("XY_Plane"), [""])
sketch9.MapMode = "FlatFace"
sketch9.AttachmentOffset = App.Placement(App.Vector(0, 0, 44.6), App.Rotation())
sketch9.addGeometry(Part.Circle(App.Vector(23.6, 60.6, 0), App.Vector(0, 0, 1), 2.5), False)
sketch9.addConstraint([
    Sketcher.Constraint("Diameter", 0, Q("5 mm")),
    Sketcher.Constraint("DistanceX", -1, 1, 0, 3, Q("23.56 mm")),
    Sketcher.Constraint("DistanceY", -1, 1, 0, 3, Q("60.57 mm")),
])
doc.recompute()
hole2 = body.newObject("PartDesign::Hole", "Hole001")
hole2.Profile = sketch9
hole2.ThreadType = "None"
hole2.Diameter = 5
hole2.DepthType = "Dimension"
hole2.Depth = 18.497848
hole2.DrillPoint = "Angled"
hole2.DrillPointAngle = 118
doc.recompute()

fillet3 = body.newObject("PartDesign::Fillet", "Fillet002")
fillet3.Base = (hole2, edges_at(hole2, [(-29.5, 40, -4.88)]))
fillet3.Radius = 1
doc.recompute()

fillet4 = body.newObject("PartDesign::Fillet", "Fillet003")
fillet4.Base = (fillet3, edges_at(fillet3, [(-19.5, 40, -4.88)]))
fillet4.Radius = 1
doc.recompute()

fillet5 = body.newObject("PartDesign::Fillet", "Fillet004")
fillet5.Base = (fillet4, edges_at(fillet4, [(29.5, 40, -4.88)]))
fillet5.Radius = 1
doc.recompute()

fillet6 = body.newObject("PartDesign::Fillet", "Fillet005")
fillet6.Base = (fillet5, edges_at(fillet5, [(19.5, 40, -4.88)]))
fillet6.Radius = 1
doc.recompute()

fillet7 = body.newObject("PartDesign::Fillet", "Fillet006")
fillet7.Base = (fillet6, edges_at(fillet6, [
    (-19.5, 65, 20.36),
    (-29.5, 65, 20.36),
    (-29.207, 65, -4.587),
    (-24.5, 65, -4.88),
    (-19.793, 65, -4.587),
]))
fillet7.Radius = 1
doc.recompute()

fillet8 = body.newObject("PartDesign::Fillet", "Fillet007")
fillet8.Base = (fillet7, edges_at(fillet7, [
    (29.5, 65, 20.36),
    (29.207, 65, -4.587),
    (19.5, 65, 20.36),
    (24.5, 65, -4.88),
    (19.793, 65, -4.587),
]))
fillet8.Radius = 1
doc.recompute()

fillet9 = body.newObject("PartDesign::Fillet", "Fillet008")
fillet9.Base = (fillet8, edges_at(fillet8, [(29.5, -33.1, 120)]))
fillet9.Radius = 1
doc.recompute()

fillet10 = body.newObject("PartDesign::Fillet", "Fillet009")
fillet10.Base = (fillet9, edges_at(fillet9, [(-29.5, -33.1, 120)]))
fillet10.Radius = 1

# Sketch on XY plane
sketch10 = body.newObject("Sketcher::SketchObject", "Sketch009")
sketch10.AttachmentSupport = (doc.getObject("XY_Plane"), [""])
sketch10.MapMode = "FlatFace"
sketch10.AttachmentOffset = App.Placement(App.Vector(0, 0, 44.6), App.Rotation())
sketch10.addGeometry([
    Part.Circle(App.Vector(-23.6, 13.4, 0), App.Vector(0, 0, 1), 2.5),
    Part.Circle(App.Vector(23.6, 13.4, 0), App.Vector(0, 0, 1), 2.5),
], False)
sketch10.addConstraint([
    Sketcher.Constraint("Equal", 0, 1),
    Sketcher.Constraint("Symmetric", 0, 3, 1, 3, -2),
    Sketcher.Constraint("Diameter", 0, Q("5 mm")),
    Sketcher.Constraint("DistanceX", 0, 3, -1, 1, Q("23.56 mm")),
    Sketcher.Constraint("DistanceY", -1, 1, 0, 3, Q("13.43 mm")),
])
doc.recompute()
hole3 = body.newObject("PartDesign::Hole", "Hole002")
hole3.Profile = sketch10
hole3.ThreadType = "None"
hole3.Diameter = 5
hole3.DepthType = "Dimension"
hole3.Depth = 18.497848
hole3.DrillPoint = "Angled"
hole3.DrillPointAngle = 118

# Sketch on XZ plane
sketch11 = body.newObject("Sketcher::SketchObject", "Sketch010")
sketch11.AttachmentSupport = (doc.getObject("XZ_Plane"), [""])
sketch11.MapMode = "FlatFace"
sketch11.AttachmentOffset = App.Placement(App.Vector(0, 0, 75), App.Rotation())
sketch11.addGeometry([
    Part.Circle(App.Vector(0, 70.3, 0), App.Vector(0, 0, 1), 2.4),
    Part.Circle(App.Vector(0, 20.7, 0), App.Vector(0, 0, 1), 2.4),
], False)
sketch11.addConstraint([
    Sketcher.Constraint("Equal", 0, 1),
    Sketcher.Constraint("PointOnObject", 0, 3, -2),
    Sketcher.Constraint("PointOnObject", 1, 3, -2),
    Sketcher.Constraint("Diameter", 0, Q("4.7 mm")),
    Sketcher.Constraint("DistanceY", -1, 1, 0, 3, Q("70.33 mm")),
    Sketcher.Constraint("DistanceY", -1, 1, 1, 3, Q("20.66 mm")),
])
pocket3 = body.newObject("PartDesign::Pocket", "Pocket002")
pocket3.Profile = sketch11
pocket3.Length = 20

doc.recompute()
